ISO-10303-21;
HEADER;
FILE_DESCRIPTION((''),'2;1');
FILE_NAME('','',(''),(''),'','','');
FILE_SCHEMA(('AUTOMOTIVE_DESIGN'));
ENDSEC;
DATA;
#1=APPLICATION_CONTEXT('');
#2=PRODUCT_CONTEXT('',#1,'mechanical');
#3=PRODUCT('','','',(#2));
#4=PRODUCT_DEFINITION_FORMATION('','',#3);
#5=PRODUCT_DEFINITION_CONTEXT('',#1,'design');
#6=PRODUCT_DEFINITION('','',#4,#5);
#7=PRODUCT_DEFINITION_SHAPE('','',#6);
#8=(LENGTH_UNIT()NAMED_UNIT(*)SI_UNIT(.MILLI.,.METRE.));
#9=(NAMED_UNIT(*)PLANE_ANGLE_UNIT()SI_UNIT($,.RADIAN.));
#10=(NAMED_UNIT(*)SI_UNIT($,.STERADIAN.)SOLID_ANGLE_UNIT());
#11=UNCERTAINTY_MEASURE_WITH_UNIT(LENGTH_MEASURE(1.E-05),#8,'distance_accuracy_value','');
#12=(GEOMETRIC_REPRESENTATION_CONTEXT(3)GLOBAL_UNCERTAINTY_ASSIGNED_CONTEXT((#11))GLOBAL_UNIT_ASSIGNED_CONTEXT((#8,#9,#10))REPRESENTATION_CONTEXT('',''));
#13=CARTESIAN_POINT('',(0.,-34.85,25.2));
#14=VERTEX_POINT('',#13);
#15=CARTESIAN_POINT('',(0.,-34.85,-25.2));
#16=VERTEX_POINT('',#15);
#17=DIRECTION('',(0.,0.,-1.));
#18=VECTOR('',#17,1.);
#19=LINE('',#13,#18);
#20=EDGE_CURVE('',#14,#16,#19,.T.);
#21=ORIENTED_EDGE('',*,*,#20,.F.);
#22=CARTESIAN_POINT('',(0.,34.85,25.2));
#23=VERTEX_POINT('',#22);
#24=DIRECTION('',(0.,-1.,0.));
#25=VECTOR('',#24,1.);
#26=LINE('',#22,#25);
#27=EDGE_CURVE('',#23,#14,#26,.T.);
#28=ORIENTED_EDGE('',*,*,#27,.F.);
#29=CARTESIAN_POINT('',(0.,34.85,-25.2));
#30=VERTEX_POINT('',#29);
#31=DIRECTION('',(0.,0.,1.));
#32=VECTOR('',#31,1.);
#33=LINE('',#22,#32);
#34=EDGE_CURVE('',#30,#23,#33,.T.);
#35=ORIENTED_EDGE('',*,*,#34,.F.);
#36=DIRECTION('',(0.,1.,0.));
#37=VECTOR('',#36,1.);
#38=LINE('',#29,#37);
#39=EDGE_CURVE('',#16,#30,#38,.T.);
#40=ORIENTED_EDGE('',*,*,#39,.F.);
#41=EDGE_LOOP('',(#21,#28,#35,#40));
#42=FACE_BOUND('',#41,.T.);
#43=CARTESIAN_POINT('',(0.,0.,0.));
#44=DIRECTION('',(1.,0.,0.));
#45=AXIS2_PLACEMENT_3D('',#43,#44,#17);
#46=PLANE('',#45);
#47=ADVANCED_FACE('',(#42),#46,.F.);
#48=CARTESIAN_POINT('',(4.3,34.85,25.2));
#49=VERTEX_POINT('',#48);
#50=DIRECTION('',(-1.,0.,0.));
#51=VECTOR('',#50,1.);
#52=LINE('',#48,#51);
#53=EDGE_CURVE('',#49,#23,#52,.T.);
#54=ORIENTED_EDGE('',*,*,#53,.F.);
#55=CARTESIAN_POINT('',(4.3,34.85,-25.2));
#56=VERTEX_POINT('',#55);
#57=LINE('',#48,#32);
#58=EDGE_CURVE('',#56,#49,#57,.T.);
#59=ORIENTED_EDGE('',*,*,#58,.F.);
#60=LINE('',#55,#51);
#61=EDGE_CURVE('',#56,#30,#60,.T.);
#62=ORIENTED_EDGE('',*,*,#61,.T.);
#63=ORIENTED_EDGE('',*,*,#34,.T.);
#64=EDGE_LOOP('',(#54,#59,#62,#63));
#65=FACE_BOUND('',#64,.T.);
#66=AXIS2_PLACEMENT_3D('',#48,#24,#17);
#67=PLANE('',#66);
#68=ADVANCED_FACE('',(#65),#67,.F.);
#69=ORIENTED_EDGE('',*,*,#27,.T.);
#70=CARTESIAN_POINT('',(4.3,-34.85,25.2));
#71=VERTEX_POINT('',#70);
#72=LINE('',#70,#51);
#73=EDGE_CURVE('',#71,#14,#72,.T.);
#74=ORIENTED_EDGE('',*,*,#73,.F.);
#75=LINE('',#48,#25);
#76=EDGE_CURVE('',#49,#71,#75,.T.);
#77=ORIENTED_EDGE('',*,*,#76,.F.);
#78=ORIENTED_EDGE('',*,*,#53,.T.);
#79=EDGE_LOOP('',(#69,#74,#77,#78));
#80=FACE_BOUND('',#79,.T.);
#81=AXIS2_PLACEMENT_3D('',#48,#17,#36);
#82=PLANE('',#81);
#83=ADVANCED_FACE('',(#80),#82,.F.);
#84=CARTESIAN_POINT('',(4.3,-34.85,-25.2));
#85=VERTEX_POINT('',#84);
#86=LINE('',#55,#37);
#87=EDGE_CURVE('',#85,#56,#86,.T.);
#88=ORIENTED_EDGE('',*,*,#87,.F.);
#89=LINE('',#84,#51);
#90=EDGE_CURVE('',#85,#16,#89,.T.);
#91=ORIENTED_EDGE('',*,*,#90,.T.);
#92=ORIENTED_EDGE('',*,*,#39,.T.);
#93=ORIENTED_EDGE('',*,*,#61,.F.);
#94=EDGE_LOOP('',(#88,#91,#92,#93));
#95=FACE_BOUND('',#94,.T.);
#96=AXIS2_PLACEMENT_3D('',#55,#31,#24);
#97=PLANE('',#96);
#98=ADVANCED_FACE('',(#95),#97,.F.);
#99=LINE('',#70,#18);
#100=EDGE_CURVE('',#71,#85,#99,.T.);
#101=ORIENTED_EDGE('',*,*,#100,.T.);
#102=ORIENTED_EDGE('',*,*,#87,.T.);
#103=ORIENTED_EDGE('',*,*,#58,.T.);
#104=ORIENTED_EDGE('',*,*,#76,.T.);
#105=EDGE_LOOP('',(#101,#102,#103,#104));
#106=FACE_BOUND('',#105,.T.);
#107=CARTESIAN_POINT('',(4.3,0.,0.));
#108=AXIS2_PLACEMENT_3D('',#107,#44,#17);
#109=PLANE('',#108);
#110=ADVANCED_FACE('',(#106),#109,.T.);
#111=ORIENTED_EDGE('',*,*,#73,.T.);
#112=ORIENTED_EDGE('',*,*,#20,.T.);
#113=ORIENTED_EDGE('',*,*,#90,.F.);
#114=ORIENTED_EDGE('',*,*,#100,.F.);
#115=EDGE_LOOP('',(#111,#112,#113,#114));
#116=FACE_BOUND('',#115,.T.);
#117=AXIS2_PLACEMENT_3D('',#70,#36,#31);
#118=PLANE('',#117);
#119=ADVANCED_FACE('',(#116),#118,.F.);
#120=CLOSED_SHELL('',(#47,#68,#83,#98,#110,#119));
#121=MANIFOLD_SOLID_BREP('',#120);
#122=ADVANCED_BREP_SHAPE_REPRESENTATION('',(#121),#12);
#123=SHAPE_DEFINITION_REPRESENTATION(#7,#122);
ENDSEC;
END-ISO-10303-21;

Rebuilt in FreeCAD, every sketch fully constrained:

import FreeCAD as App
import Part
import Sketcher
from FreeCAD import Vector

doc = App.newDocument("Part")
params = doc.addObject("Spreadsheet::Sheet", "Params")
for row, (alias, value) in enumerate([
    ("sketch1_width", "69.7 mm"),
    ("sketch1_height", "50.4 mm"),
    ("pad1_length", "4.3 mm"),
], start=1):
    params.set(f"A{row}", alias)
    params.set(f"B{row}", "=" + value)
    params.setAlias(f"B{row}", alias)

body = doc.addObject("PartDesign::Body", "Body")

sketch1 = body.newObject("Sketcher::SketchObject", "Sketch")
sketch1.AttachmentSupport = (doc.getObject("YZ_Plane"), [""])
sketch1.MapMode = "FlatFace"
sketch1.addGeometry([
    Part.LineSegment(Vector(34.85, 25.2, 0), Vector(-34.85, 25.2, 0)),
    Part.LineSegment(Vector(-34.85, 25.2, 0), Vector(-34.85, -25.2, 0)),
    Part.LineSegment(Vector(-34.85, -25.2, 0), Vector(34.85, -25.2, 0)),
    Part.LineSegment(Vector(34.85, -25.2, 0), Vector(34.85, 25.2, 0)),
], False)
sketch1.addConstraint([
    Sketcher.Constraint("Coincident", 0, 2, 1, 1),
    Sketcher.Constraint("Coincident", 1, 2, 2, 1),
    Sketcher.Constraint("Coincident", 2, 2, 3, 1),
    Sketcher.Constraint("Coincident", 3, 2, 0, 1),
    Sketcher.Constraint("Horizontal", 0),
    Sketcher.Constraint("Vertical", 1),
    Sketcher.Constraint("Horizontal", 2),
    Sketcher.Constraint("Vertical", 3),
    Sketcher.Constraint("Symmetric", 0, 2, 2, 2, -1, 1),
    Sketcher.Constraint("DistanceX", 0, 2, 0, 1, 69.7),
    Sketcher.Constraint("DistanceY", 1, 2, 1, 1, 50.4),
])
sketch1.setExpression("Constraints[9]", "Params.sketch1_width")
sketch1.setExpression("Constraints[10]", "Params.sketch1_height")
pad1 = body.newObject("PartDesign::Pad", "Pad")
pad1.Profile = sketch1
pad1.setExpression("Length", "Params.pad1_length")

doc.recompute()
